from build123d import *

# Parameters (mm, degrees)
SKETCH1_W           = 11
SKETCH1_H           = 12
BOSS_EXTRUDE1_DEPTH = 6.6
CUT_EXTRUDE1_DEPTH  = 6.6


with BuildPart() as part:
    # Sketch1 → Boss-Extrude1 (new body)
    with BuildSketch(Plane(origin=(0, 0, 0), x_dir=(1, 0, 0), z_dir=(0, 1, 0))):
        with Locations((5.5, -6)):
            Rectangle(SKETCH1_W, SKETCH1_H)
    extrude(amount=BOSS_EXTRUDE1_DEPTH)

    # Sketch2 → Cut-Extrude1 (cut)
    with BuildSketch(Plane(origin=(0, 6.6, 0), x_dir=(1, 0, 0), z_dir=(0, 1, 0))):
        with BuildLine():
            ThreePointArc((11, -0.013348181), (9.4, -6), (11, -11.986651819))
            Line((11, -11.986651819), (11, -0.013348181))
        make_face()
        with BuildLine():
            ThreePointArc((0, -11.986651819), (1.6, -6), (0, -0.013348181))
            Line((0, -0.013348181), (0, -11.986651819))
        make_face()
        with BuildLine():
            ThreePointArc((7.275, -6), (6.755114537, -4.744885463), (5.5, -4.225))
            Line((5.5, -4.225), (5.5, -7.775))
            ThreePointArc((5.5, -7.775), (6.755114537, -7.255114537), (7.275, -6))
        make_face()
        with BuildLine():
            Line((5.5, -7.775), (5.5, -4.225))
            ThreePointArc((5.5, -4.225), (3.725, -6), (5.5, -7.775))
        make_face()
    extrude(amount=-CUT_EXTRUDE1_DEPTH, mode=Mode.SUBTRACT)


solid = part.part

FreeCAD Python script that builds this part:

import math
import FreeCAD as App
import Part
import Sketcher
from FreeCAD import Vector
Q = App.Units.Quantity

doc = App.newDocument("Part")
params = doc.addObject("Spreadsheet::Sheet", "Params")
for row, (alias, value) in enumerate([
    ("sketch1_width", "11 mm"),
    ("sketch1_height", "12 mm"),
    ("pad1_length", "6.6 mm"),
    ("sketch2_radius", "12 mm"),
    ("pocket1_length", "6.6 mm"),
], start=1):
    params.set(f"A{row}", alias)
    params.set(f"B{row}", "=" + value)
    params.setAlias(f"B{row}", alias)

body = doc.addObject("PartDesign::Body", "Body")

sketch1 = doc.addObject("Sketcher::SketchObject", "Sketch")
body.addObject(sketch1)
sketch1.AttachmentSupport = (doc.XZ_Plane, [""])
sketch1.MapMode = "FlatFace"
sketch1.addGeometry(Part.LineSegment(Vector(0, 0, 0), Vector(0, 12, 0)), False)
sketch1.addGeometry(Part.LineSegment(Vector(0, 12, 0), Vector(11, 12, 0)), False)
sketch1.addGeometry(Part.LineSegment(Vector(11, 12, 0), Vector(11, 0, 0)), False)
sketch1.addGeometry(Part.LineSegment(Vector(11, 0, 0), Vector(0, 0, 0)), False)
sketch1.addConstraint(Sketcher.Constraint("Coincident", 0, 2, 1, 1))
sketch1.addConstraint(Sketcher.Constraint("Coincident", 1, 2, 2, 1))
sketch1.addConstraint(Sketcher.Constraint("Coincident", 2, 2, 3, 1))
sketch1.addConstraint(Sketcher.Constraint("Coincident", 3, 2, 0, 1))
sketch1.addConstraint(Sketcher.Constraint("Vertical", 0))
sketch1.addConstraint(Sketcher.Constraint("Horizontal", 1))
sketch1.addConstraint(Sketcher.Constraint("Vertical", 2))
sketch1.addConstraint(Sketcher.Constraint("Horizontal", 3))
sketch1.addConstraint(Sketcher.Constraint("Coincident", 3, 2, -1, 1))
sketch1.addConstraint(Sketcher.Constraint("DistanceX", 1, 1, 1, 2, Q("11 mm")))
sketch1.addConstraint(Sketcher.Constraint("DistanceY", 0, 1, 0, 2, Q("12 mm")))
sketch1.setExpression("Constraints[9]", "Params.sketch1_width")
sketch1.setExpression("Constraints[10]", "Params.sketch1_height")
pad1 = doc.addObject("PartDesign::Pad", "Pad")
body.addObject(pad1)
pad1.Profile = sketch1
pad1.setExpression("Length", "Params.pad1_length")
pad1.Reversed = True

sketch2 = doc.addObject("Sketcher::SketchObject", "Sketch001")
body.addObject(sketch2)
sketch2.AttachmentSupport = (doc.XZ_Plane, [""])
sketch2.MapMode = "FlatFace"
sketch2.AttachmentOffset = App.Placement(Vector(0, 0, -6.6), App.Rotation())
sketch2.addGeometry(Part.ArcOfCircle(Part.Circle(Vector(21.4, 6, 0), Vector(0, 0, 1), 12), math.radians(150), math.radians(210)), False)
sketch2.addGeometry(Part.LineSegment(Vector(11, 12, 0), Vector(11, 0, 0)), False)
sketch2.addGeometry(Part.ArcOfCircle(Part.Circle(Vector(-10.4, 6, 0), Vector(0, 0, 1), 12), math.radians(-30), math.radians(30)), False)
sketch2.addGeometry(Part.LineSegment(Vector(0, 0, 0), Vector(0, 12, 0)), False)
sketch2.addGeometry(Part.ArcOfCircle(Part.Circle(Vector(5.5, 6, 0), Vector(0, 0, 1), 1.8), math.radians(-90), math.radians(0)), False)
sketch2.addGeometry(Part.ArcOfCircle(Part.Circle(Vector(5.5, 6, 0), Vector(0, 0, 1), 1.8), math.radians(90), math.radians(270)), False)
sketch2.addGeometry(Part.ArcOfCircle(Part.Circle(Vector(5.5, 6, 0), Vector(0, 0, 1), 1.8), math.radians(0), math.radians(90)), False)
sketch2.addConstraint(Sketcher.Constraint("Coincident", 0, 1, 1, 1))
sketch2.addConstraint(Sketcher.Constraint("Coincident", 1, 2, 0, 2))
sketch2.addConstraint(Sketcher.Constraint("Coincident", 2, 1, 3, 1))
sketch2.addConstraint(Sketcher.Constraint("Coincident", 3, 2, 2, 2))
sketch2.addConstraint(Sketcher.Constraint("Tangent", 4, 1, 5, 2))
sketch2.addConstraint(Sketcher.Constraint("Tangent", 5, 1, 6, 2))
sketch2.addConstraint(Sketcher.Constraint("Tangent", 6, 1, 4, 2))
sketch2.addConstraint(Sketcher.Constraint("Vertical", 1))
sketch2.addConstraint(Sketcher.Constraint("Vertical", 3))
sketch2.addConstraint(Sketcher.Constraint("Equal", 0, 2))
sketch2.addConstraint(Sketcher.Constraint("PointOnObject", 2, 1, -2))
sketch2.addConstraint(Sketcher.Constraint("Horizontal", 0, 3, 2, 3))
sketch2.addConstraint(Sketcher.Constraint("Horizontal", 2, 3, 4, 3))
sketch2.addConstraint(Sketcher.Constraint("Horizontal", 1, 2, 2, 1))
sketch2.addConstraint(Sketcher.Constraint("Horizontal", 5, 3, 6, 1))
sketch2.addConstraint(Sketcher.Constraint("Vertical", 6, 3, 4, 1))
sketch2.addConstraint(Sketcher.Constraint("Vertical", 4, 1, 5, 1))
sketch2.addConstraint(Sketcher.Constraint("Radius", 0, Q("12 mm")))
sketch2.addConstraint(Sketcher.Constraint("DistanceY", -1, 1, 0, 3, Q("6 mm")))
sketch2.addConstraint(Sketcher.Constraint("DistanceX", -1, 1, 0, 1, Q("11 mm")))
sketch2.addConstraint(Sketcher.Constraint("Radius", 4, Q("1.775 mm")))
sketch2.addConstraint(Sketcher.Constraint("DistanceX", -1, 1, 0, 3, Q("21.4 mm")))
sketch2.addConstraint(Sketcher.Constraint("DistanceX", -1, 1, 4, 3, Q("5.5 mm")))
sketch2.setExpression("Constraints[17]", "Params.sketch2_radius")
pocket1 = doc.addObject("PartDesign::Pocket", "Pocket")
body.addObject(pocket1)
pocket1.Profile = sketch2
pocket1.setExpression("Length", "Params.pocket1_length")
pocket1.Reversed = True

doc.recompute()
